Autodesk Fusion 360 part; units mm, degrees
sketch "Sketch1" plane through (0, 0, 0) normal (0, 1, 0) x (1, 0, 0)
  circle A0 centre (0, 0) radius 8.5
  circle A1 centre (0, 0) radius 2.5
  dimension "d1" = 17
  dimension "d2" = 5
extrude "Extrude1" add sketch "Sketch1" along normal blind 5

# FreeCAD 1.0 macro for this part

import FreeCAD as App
import Part
import Sketcher
from FreeCAD import Vector
Q = App.Units.Quantity

doc = App.newDocument("Part")
params = doc.addObject("Spreadsheet::Sheet", "Params")
for row, (alias, value) in enumerate([
    ("sketch1_diameter", "17 mm"),
    ("sketch1_diameter2", "5 mm"),
    ("pad1_length", "5 mm"),
], start=1):
    params.set(f"A{row}", alias)
    params.set(f"B{row}", "=" + value)
    params.setAlias(f"B{row}", alias)

body = doc.addObject("PartDesign::Body", "Body")

# Sketch on XZ plane
sketch1 = doc.addObject("Sketcher::SketchObject", "Sketch")
body.addObject(sketch1)
sketch1.AttachmentSupport = (doc.XZ_Plane, [""])
sketch1.MapMode = "FlatFace"
sketch1.addGeometry([
    Part.Circle(Vector(0, 0, 0), Vector(0, 0, 1), 8.5),
    Part.Circle(Vector(0, 0, 0), Vector(0, 0, 1), 2.5),
], False)
sketch1.addConstraint([
    Sketcher.Constraint("Coincident", 0, 3, -1, 1),
    Sketcher.Constraint("Coincident", 1, 3, -1, 1),
    Sketcher.Constraint("Diameter", 0, Q("17 mm")),
    Sketcher.Constraint("Diameter", 1, Q("5 mm")),
])
sketch1.setExpression("Constraints[2]", "Params.sketch1_diameter")
sketch1.setExpression("Constraints[3]", "Params.sketch1_diameter2")
pad1 = doc.addObject("PartDesign::Pad", "Pad")
body.addObject(pad1)
pad1.Profile = sketch1
pad1.setExpression("Length", "Params.pad1_length")
pad1.Reversed = True

doc.recompute()
